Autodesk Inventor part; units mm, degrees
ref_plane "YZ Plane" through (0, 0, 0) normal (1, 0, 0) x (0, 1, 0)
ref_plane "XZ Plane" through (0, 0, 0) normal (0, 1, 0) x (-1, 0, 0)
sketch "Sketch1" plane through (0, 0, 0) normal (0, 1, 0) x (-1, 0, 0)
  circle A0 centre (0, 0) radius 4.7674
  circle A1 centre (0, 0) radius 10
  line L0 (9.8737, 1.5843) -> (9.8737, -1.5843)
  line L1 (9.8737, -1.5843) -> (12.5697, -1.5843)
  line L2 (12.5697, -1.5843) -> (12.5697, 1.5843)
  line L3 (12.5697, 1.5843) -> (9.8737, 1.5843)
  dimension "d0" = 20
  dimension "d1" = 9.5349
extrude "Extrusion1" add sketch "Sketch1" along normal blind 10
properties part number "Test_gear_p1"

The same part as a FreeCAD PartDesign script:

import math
import FreeCAD as App
import Part
import Sketcher
from FreeCAD import Vector
Q = App.Units.Quantity

doc = App.newDocument("Part")
params = doc.addObject("Spreadsheet::Sheet", "Params")
for row, (alias, value) in enumerate([
    ("sketch1_radius", "10 mm"),
    ("pad1_length", "10 mm"),
], start=1):
    params.set(f"A{row}", alias)
    params.set(f"B{row}", "=" + value)
    params.setAlias(f"B{row}", alias)

body = doc.addObject("PartDesign::Body", "Body")

# Sketch on XZ plane
sketch1 = body.newObject("Sketcher::SketchObject", "Sketch")
sketch1.AttachmentSupport = (doc.getObject("XZ_Plane"), [""])
sketch1.MapMode = "FlatFace"
sketch1.addGeometry(Part.LineSegment(Vector(-9.8737, -1.5843, 0), Vector(-12.5697, -1.5843, 0)), False)
sketch1.addGeometry(Part.LineSegment(Vector(-12.5697, -1.5843, 0), Vector(-12.5697, 1.5843, 0)), False)
sketch1.addGeometry(Part.LineSegment(Vector(-12.5697, 1.5843, 0), Vector(-9.8737, 1.5843, 0)), False)
sketch1.addGeometry(Part.ArcOfCircle(Part.Circle(Vector(0, 0, 0), Vector(0, 0, 1), 10), math.radians(-170.884219), math.radians(170.884219)), False)
sketch1.addGeometry(Part.Circle(Vector(0, 0, 0), Vector(0, 0, 1), 4.7674), False)
sketch1.addConstraint(Sketcher.Constraint("Coincident", 0, 2, 1, 1))
sketch1.addConstraint(Sketcher.Constraint("Coincident", 1, 2, 2, 1))
sketch1.addConstraint(Sketcher.Constraint("Coincident", 2, 2, 3, 2))
sketch1.addConstraint(Sketcher.Constraint("Coincident", 3, 1, 0, 1))
sketch1.addConstraint(Sketcher.Constraint("Horizontal", 0))
sketch1.addConstraint(Sketcher.Constraint("Vertical", 1))
sketch1.addConstraint(Sketcher.Constraint("Horizontal", 2))
sketch1.addConstraint(Sketcher.Constraint("Coincident", 3, 3, -1, 1))
sketch1.addConstraint(Sketcher.Constraint("Coincident", 4, 3, -1, 1))
sketch1.addConstraint(Sketcher.Constraint("Vertical", 2, 2, 3, 1))
sketch1.addConstraint(Sketcher.Constraint("Radius", 3, Q("10 mm")))
sketch1.addConstraint(Sketcher.Constraint("Diameter", 4, Q("9.5348 mm")))
sketch1.addConstraint(Sketcher.Constraint("DistanceX", 0, 2, 0, 1, Q("2.696 mm")))
sketch1.addConstraint(Sketcher.Constraint("DistanceY", 1, 1, 1, 2, Q("3.1686 mm")))
sketch1.setExpression("Constraints[10]", "Params.sketch1_radius")
pad1 = body.newObject("PartDesign::Pad", "Pad")
pad1.Profile = sketch1
pad1.setExpression("Length", "Params.pad1_length")
pad1.Reversed = True

doc.recompute()
